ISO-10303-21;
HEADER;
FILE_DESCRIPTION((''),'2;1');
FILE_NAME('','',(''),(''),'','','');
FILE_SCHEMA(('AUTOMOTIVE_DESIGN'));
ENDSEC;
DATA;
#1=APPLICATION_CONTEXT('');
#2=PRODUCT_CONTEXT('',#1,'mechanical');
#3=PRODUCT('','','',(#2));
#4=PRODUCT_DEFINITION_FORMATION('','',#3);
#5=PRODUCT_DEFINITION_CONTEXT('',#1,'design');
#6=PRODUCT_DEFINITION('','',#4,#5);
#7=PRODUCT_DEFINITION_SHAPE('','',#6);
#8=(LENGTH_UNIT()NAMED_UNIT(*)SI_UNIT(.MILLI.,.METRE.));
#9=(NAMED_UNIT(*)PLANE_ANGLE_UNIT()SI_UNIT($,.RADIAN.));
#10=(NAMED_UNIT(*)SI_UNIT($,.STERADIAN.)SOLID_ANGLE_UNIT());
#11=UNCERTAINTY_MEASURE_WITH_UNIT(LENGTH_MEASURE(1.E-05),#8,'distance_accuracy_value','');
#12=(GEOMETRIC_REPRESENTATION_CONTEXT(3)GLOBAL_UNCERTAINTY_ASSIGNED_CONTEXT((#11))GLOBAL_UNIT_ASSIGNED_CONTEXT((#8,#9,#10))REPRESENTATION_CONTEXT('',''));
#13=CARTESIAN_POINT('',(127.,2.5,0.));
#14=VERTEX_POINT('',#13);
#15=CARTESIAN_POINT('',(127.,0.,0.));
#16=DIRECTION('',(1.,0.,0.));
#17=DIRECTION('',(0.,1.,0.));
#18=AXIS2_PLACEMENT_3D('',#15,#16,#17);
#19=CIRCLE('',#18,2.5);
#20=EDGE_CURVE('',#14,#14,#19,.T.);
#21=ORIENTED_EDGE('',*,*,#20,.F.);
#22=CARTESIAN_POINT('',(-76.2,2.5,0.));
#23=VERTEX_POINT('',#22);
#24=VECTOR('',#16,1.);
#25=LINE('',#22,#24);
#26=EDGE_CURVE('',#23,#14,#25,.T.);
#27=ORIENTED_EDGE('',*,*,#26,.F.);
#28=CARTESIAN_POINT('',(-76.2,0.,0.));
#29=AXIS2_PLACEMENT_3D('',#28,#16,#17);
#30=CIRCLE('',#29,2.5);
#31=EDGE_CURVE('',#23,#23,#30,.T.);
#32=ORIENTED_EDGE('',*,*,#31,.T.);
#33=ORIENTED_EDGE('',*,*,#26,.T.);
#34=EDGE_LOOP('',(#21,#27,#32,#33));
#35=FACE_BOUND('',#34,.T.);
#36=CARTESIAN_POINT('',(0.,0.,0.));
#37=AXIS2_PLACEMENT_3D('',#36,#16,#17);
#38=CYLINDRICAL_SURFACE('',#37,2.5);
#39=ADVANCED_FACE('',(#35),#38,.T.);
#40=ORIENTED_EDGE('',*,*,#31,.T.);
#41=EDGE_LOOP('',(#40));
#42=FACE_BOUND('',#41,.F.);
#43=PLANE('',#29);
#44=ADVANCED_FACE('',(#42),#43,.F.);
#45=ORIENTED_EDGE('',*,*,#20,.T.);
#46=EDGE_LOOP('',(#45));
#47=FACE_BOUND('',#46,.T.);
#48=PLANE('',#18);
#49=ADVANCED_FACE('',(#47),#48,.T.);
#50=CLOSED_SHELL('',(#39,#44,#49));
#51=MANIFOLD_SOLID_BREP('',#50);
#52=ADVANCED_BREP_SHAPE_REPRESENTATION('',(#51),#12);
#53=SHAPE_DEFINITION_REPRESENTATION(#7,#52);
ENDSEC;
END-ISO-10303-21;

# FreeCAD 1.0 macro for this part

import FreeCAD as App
import Part
import Sketcher
from FreeCAD import Vector

doc = App.newDocument("Part")
body = doc.addObject("PartDesign::Body", "Body")

sketch1 = body.newObject("Sketcher::SketchObject", "Sketch")
sketch1.AttachmentSupport = (doc.getObject("YZ_Plane"), [""])
sketch1.MapMode = "FlatFace"
sketch1.addGeometry(Part.Circle(Vector(0, 0, 0), Vector(0, 0, 1), 2.5), False)
sketch1.addConstraint([
    Sketcher.Constraint("Coincident", 0, 3, -1, 1),
    Sketcher.Constraint("Diameter", 0, 5.0),
])
pad1 = body.newObject("PartDesign::Pad", "Pad")
pad1.Profile = sketch1
pad1.Type = "TwoLengths"
pad1.Length = 76.2
pad1.Length2 = 127
pad1.Reversed = True

doc.recompute()
